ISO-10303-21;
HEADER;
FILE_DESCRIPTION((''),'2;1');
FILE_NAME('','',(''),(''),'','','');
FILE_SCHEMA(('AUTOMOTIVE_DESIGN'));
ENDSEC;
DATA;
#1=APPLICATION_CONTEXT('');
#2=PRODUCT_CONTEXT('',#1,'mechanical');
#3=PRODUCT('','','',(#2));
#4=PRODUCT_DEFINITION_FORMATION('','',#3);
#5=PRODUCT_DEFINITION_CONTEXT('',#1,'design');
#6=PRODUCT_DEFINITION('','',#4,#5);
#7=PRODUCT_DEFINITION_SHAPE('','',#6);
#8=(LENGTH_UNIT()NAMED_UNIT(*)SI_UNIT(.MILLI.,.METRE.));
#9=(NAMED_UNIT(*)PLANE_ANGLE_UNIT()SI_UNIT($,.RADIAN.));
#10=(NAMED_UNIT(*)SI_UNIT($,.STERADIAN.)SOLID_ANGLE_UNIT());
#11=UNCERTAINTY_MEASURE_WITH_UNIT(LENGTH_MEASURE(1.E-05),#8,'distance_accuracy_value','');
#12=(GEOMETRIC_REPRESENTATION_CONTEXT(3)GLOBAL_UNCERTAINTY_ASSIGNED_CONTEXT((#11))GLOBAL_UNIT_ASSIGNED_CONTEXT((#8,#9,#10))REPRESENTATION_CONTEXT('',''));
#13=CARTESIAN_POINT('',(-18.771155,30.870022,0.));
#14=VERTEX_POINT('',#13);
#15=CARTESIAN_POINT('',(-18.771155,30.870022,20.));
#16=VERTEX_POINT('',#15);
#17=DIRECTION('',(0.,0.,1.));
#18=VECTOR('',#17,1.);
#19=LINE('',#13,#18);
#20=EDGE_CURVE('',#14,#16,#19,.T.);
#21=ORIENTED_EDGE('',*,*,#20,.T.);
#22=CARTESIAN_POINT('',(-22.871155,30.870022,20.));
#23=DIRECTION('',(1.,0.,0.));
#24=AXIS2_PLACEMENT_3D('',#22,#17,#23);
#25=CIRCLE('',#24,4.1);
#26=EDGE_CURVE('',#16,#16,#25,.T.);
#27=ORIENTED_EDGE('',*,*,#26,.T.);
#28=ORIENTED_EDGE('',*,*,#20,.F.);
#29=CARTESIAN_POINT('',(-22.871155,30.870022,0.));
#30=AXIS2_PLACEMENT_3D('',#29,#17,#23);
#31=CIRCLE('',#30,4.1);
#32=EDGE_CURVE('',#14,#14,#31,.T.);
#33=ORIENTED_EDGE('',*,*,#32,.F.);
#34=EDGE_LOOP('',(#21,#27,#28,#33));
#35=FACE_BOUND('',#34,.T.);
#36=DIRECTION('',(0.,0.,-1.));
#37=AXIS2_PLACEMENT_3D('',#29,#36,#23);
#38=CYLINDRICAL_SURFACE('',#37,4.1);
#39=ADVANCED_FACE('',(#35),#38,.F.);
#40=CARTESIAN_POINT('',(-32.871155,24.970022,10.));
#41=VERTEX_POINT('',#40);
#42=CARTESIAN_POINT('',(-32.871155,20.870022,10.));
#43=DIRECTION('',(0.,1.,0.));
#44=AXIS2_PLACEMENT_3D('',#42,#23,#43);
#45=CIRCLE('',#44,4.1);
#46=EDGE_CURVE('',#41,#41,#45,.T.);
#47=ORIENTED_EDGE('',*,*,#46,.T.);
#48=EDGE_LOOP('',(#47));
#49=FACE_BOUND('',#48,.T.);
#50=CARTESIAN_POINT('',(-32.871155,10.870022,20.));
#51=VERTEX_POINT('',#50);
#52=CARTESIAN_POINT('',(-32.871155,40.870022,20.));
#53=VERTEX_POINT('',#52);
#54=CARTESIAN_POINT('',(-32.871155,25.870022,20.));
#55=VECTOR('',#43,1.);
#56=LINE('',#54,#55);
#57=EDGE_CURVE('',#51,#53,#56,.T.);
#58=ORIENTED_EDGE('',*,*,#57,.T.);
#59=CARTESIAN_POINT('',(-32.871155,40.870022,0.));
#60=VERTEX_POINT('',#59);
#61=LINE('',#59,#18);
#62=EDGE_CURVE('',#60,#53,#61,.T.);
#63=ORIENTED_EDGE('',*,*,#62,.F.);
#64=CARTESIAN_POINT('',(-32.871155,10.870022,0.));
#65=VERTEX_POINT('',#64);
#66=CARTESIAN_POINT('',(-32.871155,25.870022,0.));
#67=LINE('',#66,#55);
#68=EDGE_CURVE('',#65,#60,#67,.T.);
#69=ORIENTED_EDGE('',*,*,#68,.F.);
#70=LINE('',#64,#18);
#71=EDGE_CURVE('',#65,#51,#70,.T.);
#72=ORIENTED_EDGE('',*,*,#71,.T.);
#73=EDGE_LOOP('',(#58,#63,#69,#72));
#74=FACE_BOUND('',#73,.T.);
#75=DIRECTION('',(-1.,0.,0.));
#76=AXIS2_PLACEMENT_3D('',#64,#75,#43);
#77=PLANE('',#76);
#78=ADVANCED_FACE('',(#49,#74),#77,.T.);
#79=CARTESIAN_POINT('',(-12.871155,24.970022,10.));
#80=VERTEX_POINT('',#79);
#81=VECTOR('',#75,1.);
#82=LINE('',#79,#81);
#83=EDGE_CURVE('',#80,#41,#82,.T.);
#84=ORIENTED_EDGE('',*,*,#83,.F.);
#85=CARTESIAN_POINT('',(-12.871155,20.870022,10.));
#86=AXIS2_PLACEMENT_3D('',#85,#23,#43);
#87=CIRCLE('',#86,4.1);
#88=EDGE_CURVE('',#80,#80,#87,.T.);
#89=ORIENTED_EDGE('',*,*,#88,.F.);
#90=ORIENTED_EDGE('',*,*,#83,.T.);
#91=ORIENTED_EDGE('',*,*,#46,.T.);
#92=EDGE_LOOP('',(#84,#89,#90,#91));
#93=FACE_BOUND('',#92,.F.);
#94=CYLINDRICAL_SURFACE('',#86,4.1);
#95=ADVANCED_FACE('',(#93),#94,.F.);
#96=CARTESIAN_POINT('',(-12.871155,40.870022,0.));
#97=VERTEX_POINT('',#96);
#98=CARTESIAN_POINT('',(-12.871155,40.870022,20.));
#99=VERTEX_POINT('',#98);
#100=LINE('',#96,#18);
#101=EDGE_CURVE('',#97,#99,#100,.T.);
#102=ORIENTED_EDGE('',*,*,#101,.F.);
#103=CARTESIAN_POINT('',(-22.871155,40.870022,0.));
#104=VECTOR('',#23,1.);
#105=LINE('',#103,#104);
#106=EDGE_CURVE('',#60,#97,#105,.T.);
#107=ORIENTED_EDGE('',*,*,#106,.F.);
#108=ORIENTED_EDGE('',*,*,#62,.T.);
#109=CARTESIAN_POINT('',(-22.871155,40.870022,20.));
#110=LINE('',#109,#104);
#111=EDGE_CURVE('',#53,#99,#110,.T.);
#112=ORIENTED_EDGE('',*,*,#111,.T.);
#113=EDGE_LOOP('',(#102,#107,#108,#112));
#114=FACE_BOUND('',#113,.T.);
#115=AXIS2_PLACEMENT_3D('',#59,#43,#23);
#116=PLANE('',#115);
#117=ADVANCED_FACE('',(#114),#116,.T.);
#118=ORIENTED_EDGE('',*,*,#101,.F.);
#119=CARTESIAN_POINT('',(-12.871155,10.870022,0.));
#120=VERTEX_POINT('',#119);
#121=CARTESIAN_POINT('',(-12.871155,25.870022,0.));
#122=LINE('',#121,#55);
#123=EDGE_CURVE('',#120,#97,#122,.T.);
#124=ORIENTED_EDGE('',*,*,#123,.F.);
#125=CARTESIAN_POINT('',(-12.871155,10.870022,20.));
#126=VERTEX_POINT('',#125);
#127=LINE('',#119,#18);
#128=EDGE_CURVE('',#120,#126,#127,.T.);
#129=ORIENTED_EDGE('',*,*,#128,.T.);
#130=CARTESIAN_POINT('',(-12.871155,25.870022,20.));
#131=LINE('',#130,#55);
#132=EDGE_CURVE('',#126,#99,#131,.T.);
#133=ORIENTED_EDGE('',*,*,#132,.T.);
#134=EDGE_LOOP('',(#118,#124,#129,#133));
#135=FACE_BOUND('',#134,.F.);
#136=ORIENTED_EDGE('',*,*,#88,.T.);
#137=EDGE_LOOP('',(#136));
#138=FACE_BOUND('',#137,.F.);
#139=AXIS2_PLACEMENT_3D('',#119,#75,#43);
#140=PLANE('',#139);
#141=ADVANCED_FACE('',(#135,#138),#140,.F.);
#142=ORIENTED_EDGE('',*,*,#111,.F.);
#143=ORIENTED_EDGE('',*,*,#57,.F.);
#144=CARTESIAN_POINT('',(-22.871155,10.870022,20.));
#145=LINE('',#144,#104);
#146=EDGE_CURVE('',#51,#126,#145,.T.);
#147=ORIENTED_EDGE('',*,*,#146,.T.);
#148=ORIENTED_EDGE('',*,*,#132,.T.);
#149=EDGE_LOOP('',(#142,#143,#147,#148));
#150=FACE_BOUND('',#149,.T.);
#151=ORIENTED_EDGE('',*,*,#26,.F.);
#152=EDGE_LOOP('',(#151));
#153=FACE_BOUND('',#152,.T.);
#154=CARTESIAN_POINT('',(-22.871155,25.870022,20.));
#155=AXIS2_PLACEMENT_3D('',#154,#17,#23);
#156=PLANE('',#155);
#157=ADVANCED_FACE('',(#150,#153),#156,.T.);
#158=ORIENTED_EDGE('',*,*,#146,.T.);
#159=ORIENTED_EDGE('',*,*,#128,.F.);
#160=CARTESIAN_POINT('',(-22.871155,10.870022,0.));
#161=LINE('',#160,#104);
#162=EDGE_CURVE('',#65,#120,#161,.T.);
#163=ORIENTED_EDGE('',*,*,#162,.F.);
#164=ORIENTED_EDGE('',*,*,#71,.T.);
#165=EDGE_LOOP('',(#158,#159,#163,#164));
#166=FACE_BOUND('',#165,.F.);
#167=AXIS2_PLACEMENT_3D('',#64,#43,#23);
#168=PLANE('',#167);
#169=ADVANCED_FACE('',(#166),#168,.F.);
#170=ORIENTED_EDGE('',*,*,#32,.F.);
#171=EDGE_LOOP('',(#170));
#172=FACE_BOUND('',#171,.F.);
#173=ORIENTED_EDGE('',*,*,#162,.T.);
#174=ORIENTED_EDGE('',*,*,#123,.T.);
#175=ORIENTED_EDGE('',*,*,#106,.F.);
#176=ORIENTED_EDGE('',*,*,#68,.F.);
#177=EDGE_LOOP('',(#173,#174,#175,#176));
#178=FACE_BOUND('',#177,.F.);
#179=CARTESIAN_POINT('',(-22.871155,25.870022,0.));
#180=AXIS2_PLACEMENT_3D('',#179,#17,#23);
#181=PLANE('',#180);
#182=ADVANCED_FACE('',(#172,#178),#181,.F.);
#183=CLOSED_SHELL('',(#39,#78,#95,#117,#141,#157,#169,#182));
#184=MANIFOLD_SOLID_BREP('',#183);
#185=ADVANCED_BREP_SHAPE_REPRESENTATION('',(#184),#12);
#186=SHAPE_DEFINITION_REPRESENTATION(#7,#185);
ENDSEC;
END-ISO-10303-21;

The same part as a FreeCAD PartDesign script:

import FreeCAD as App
import Part
import Sketcher

V = App.Vector
Q = App.Units.Quantity

doc = App.newDocument("Part")
body = doc.addObject("PartDesign::Body", "Body")

sketch1 = body.newObject("Sketcher::SketchObject", "Sketch")
sketch1.AttachmentSupport = (doc.getObject("XY_Plane"), [""])
sketch1.MapMode = "FlatFace"
sketch1.addGeometry(Part.LineSegment(V(-32.871155, 40.870022, 0), V(-32.871155, 10.870022, 0)), False)
sketch1.addGeometry(Part.LineSegment(V(-32.871155, 10.870022, 0), V(-12.871155, 10.870022, 0)), False)
sketch1.addGeometry(Part.LineSegment(V(-12.871155, 10.870022, 0), V(-12.871155, 40.870022, 0)), False)
sketch1.addGeometry(Part.LineSegment(V(-12.871155, 40.870022, 0), V(-32.871155, 40.870022, 0)), False)
sketch1.addGeometry(Part.Circle(V(-22.871155, 30.870022, 0), V(0, 0, 1), 4.1), False)
sketch1.addConstraint(Sketcher.Constraint("Coincident", 0, 2, 1, 1))
sketch1.addConstraint(Sketcher.Constraint("Coincident", 1, 2, 2, 1))
sketch1.addConstraint(Sketcher.Constraint("Coincident", 2, 2, 3, 1))
sketch1.addConstraint(Sketcher.Constraint("Coincident", 3, 2, 0, 1))
sketch1.addConstraint(Sketcher.Constraint("Vertical", 0))
sketch1.addConstraint(Sketcher.Constraint("Horizontal", 1))
sketch1.addConstraint(Sketcher.Constraint("Vertical", 2))
sketch1.addConstraint(Sketcher.Constraint("Horizontal", 3))
sketch1.addConstraint(Sketcher.Constraint("Diameter", 4, Q("8.2 mm")))
sketch1.addConstraint(Sketcher.Constraint("DistanceX", 1, 1, 1, 2, Q("20 mm")))
sketch1.addConstraint(Sketcher.Constraint("DistanceY", 0, 2, 0, 1, Q("30 mm")))
sketch1.addConstraint(Sketcher.Constraint("DistanceX", 0, 2, 4, 3, Q("10 mm")))
sketch1.addConstraint(Sketcher.Constraint("DistanceY", 0, 2, 4, 3, Q("20 mm")))
sketch1.addConstraint(Sketcher.Constraint("DistanceY", -1, 1, 4, 3, Q("30.870022 mm")))
sketch1.addConstraint(Sketcher.Constraint("DistanceX", 4, 3, -1, 1, Q("22.871155 mm")))
pad1 = body.newObject("PartDesign::Pad", "Pad")
pad1.Profile = sketch1
pad1.Length = 20

sketch2 = body.newObject("Sketcher::SketchObject", "Sketch001")
sketch2.AttachmentSupport = (doc.getObject("YZ_Plane"), [""])
sketch2.MapMode = "FlatFace"
sketch2.AttachmentOffset = App.Placement(V(0, 0, -12.871155), App.Rotation())
sketch2.addGeometry(Part.Circle(V(20.870022, 10, 0), V(0, 0, 1), 4.1), False)
sketch2.addConstraint(Sketcher.Constraint("Diameter", 0, Q("8.2 mm")))
sketch2.addConstraint(Sketcher.Constraint("DistanceY", -1, 1, 0, 3, Q("10 mm")))
sketch2.addConstraint(Sketcher.Constraint("DistanceX", -1, 1, 0, 3, Q("20.870022 mm")))
pocket1 = body.newObject("PartDesign::Pocket", "Pocket")
pocket1.Profile = sketch2
pocket1.Length = 20

doc.recompute()
